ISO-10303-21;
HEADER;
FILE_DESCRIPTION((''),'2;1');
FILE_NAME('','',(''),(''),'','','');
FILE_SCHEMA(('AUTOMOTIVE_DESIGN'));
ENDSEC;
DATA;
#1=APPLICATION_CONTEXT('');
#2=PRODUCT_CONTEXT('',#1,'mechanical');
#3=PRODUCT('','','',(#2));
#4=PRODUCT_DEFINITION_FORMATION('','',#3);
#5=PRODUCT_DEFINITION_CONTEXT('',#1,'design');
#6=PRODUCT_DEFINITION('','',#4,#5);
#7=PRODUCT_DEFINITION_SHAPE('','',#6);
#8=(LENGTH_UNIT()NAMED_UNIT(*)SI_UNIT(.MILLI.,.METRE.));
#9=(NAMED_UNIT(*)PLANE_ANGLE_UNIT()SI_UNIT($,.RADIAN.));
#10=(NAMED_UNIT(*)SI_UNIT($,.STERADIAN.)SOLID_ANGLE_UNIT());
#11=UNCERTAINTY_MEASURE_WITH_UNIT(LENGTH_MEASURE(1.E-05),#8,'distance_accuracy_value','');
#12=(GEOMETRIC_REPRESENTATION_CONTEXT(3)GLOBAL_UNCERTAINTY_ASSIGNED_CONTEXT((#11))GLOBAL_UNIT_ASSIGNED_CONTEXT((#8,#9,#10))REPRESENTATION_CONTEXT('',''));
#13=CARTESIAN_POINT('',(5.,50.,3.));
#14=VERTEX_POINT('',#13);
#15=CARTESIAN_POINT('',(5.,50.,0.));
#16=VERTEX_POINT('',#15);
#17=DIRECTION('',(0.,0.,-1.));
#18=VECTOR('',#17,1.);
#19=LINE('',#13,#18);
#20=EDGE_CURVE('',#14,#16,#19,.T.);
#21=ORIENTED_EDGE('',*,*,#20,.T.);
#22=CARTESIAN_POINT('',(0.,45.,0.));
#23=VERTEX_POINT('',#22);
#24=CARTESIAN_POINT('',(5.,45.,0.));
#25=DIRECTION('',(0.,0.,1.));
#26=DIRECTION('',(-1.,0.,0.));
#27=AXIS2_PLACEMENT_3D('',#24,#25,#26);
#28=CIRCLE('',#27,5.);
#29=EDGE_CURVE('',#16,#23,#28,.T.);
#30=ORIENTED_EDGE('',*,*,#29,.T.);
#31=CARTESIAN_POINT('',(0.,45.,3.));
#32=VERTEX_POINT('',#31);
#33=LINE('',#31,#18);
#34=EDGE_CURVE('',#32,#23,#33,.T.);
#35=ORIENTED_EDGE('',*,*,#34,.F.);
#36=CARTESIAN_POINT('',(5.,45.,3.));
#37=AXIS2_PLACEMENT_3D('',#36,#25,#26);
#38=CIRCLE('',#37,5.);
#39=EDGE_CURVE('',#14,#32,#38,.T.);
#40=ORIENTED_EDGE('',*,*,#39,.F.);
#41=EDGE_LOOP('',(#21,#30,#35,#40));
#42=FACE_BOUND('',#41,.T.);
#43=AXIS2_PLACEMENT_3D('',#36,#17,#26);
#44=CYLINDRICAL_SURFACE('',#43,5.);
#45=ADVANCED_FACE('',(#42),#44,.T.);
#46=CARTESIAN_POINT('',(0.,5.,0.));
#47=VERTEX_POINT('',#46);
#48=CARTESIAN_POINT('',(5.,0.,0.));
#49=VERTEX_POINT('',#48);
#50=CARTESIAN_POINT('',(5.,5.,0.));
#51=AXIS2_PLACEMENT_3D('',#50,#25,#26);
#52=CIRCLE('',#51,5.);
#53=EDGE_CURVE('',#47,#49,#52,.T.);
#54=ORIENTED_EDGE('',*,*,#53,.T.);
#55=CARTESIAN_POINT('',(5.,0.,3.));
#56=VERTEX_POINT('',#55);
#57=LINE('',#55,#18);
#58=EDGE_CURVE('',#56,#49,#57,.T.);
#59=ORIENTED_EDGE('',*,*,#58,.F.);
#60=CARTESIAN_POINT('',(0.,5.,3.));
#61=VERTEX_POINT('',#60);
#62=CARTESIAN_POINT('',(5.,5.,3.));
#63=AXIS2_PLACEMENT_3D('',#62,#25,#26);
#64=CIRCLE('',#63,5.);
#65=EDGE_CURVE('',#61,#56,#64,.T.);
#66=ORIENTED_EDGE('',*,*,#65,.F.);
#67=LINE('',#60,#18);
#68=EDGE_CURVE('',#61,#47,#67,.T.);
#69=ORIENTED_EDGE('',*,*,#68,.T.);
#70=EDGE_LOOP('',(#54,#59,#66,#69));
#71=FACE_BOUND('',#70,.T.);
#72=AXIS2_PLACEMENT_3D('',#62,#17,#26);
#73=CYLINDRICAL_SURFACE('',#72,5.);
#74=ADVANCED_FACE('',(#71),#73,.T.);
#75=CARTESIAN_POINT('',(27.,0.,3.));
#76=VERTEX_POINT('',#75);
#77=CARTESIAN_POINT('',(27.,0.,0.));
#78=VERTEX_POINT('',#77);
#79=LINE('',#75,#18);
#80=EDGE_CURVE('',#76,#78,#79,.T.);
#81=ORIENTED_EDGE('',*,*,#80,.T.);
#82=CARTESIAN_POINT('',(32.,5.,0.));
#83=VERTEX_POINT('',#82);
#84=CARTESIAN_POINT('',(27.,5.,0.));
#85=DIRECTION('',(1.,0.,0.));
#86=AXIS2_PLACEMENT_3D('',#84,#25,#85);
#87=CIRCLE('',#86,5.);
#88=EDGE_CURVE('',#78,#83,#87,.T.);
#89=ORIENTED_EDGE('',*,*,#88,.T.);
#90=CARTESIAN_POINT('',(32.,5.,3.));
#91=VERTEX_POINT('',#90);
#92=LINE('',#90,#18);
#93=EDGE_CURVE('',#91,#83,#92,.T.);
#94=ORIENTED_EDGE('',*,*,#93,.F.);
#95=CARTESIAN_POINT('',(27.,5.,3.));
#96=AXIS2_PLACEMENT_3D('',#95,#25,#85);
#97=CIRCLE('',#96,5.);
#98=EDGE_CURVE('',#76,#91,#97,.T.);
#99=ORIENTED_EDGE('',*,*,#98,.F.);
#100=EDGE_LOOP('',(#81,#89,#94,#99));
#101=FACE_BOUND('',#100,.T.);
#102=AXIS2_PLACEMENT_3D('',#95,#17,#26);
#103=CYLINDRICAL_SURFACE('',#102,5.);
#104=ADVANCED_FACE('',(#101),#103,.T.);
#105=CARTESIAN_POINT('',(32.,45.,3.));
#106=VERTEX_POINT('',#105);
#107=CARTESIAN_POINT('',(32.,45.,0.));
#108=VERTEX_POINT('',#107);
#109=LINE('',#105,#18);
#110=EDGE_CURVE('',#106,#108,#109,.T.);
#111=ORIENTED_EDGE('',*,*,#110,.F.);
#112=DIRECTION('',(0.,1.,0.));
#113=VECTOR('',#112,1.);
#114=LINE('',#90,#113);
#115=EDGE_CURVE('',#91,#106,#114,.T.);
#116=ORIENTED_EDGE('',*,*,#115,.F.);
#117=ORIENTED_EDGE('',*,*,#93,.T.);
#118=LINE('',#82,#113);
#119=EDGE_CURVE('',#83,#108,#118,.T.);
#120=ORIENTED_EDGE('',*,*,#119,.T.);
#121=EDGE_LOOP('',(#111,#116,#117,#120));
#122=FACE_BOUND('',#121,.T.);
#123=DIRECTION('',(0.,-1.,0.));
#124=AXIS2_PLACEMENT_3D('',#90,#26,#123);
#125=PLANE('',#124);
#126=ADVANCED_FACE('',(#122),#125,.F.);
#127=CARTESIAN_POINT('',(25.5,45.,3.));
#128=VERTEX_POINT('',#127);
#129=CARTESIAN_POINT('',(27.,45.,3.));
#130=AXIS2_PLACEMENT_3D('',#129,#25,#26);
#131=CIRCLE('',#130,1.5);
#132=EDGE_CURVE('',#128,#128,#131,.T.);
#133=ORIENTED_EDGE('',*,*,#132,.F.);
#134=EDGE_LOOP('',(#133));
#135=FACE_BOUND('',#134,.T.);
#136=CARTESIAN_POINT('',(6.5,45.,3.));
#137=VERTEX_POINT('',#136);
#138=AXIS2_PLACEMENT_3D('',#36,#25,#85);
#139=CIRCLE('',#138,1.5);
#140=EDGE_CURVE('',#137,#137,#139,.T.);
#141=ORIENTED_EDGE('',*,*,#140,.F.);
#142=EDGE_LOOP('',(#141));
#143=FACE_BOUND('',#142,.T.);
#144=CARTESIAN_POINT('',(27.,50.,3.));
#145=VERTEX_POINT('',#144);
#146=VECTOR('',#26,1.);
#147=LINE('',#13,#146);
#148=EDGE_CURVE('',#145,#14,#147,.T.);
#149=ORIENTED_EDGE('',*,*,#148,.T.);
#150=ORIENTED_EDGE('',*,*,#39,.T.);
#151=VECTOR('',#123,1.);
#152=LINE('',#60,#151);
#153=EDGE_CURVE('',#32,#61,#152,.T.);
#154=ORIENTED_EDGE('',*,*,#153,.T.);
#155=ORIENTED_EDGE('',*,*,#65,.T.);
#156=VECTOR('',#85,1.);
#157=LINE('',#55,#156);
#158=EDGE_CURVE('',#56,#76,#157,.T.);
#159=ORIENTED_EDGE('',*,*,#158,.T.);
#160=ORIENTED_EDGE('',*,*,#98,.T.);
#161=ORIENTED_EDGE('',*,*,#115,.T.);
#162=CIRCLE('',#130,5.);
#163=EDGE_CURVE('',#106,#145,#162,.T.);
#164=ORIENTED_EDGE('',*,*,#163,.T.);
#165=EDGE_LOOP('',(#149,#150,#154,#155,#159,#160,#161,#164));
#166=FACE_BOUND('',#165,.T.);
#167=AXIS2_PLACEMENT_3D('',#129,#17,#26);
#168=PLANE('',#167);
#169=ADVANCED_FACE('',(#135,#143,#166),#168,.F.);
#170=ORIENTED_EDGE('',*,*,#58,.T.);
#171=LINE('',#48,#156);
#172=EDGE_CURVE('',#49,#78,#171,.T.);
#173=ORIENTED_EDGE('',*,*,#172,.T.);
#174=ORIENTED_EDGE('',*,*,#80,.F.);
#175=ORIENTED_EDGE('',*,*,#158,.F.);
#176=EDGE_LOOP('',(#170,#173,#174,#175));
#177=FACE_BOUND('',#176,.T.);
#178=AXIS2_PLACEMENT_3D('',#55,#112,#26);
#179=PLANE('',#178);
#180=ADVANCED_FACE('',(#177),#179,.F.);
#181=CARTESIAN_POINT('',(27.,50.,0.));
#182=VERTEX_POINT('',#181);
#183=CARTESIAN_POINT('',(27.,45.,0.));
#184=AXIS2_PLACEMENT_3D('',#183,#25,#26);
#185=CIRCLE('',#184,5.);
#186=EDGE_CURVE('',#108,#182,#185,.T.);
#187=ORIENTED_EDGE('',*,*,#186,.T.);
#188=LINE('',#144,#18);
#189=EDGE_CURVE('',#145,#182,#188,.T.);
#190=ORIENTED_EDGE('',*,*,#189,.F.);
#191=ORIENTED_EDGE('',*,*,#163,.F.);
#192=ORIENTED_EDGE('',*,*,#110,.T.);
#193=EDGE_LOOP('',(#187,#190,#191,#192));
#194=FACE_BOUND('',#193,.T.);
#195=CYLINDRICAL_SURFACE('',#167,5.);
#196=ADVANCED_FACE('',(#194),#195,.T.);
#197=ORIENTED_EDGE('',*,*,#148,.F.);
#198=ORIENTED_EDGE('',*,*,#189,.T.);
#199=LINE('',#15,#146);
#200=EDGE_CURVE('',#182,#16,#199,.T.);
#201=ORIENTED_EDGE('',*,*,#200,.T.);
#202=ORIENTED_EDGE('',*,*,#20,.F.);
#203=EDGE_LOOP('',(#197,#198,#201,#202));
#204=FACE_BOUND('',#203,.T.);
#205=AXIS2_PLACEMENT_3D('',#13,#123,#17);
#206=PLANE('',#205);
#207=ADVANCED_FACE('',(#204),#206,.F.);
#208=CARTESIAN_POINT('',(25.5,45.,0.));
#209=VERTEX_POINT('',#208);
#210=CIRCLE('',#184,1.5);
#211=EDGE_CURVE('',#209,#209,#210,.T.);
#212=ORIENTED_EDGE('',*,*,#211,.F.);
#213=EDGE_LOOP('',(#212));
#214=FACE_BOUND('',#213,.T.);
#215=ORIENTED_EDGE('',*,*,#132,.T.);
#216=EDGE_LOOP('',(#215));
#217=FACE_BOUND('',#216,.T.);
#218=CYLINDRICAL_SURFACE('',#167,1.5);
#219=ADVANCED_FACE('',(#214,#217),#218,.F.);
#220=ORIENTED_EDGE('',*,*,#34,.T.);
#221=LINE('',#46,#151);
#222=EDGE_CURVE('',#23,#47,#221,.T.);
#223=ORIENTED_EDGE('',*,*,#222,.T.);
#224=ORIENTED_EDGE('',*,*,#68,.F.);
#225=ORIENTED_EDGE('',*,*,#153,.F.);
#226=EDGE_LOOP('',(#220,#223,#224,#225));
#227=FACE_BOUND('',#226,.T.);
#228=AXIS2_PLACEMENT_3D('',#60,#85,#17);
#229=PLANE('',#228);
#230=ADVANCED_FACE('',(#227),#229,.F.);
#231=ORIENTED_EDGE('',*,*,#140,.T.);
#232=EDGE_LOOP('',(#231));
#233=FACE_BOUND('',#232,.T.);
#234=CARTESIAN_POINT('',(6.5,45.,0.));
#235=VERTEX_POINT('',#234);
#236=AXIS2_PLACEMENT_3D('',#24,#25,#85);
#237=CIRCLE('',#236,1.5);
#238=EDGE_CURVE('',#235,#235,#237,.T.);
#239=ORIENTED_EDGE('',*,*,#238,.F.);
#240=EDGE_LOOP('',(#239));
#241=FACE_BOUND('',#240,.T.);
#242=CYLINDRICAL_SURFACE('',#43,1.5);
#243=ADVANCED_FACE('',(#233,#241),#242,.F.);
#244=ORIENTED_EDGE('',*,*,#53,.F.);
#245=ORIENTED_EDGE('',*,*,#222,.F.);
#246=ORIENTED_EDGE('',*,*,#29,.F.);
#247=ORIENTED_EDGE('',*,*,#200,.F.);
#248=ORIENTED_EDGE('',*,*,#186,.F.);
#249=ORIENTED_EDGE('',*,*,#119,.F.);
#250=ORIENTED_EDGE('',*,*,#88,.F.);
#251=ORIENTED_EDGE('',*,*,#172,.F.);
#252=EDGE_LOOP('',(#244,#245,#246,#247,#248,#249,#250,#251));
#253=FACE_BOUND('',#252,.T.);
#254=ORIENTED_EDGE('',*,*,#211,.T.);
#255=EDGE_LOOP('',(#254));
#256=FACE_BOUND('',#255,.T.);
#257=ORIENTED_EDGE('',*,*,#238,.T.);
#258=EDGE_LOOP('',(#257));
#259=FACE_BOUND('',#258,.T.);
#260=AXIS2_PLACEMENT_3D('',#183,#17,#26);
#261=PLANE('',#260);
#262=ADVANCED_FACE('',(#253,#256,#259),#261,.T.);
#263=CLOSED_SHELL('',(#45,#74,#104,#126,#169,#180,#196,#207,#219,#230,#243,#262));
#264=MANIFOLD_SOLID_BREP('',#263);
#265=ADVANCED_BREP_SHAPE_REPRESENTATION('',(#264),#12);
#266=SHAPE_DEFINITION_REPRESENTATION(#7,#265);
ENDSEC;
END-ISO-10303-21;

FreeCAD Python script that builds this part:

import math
import FreeCAD as App
import Part
import Sketcher

V = App.Vector

doc = App.newDocument("Part")
body = doc.addObject("PartDesign::Body", "Body")

# Sketch on XY plane
sketch1 = body.newObject("Sketcher::SketchObject", "Sketch")
sketch1.AttachmentSupport = (doc.getObject("XY_Plane"), [""])
sketch1.MapMode = "FlatFace"
sketch1.addGeometry([
    Part.LineSegment(V(5, 0, 0), V(27, 0, 0)),  # 0
    Part.ArcOfCircle(Part.Circle(V(27, 5, 0), V(0, 0, 1), 5), math.radians(-90), math.radians(0)),  # 1
    Part.LineSegment(V(32, 5, 0), V(32, 45, 0)),  # 2
    Part.ArcOfCircle(Part.Circle(V(27, 45, 0), V(0, 0, 1), 5), math.radians(0), math.radians(90)),  # 3
    Part.LineSegment(V(27, 50, 0), V(5, 50, 0)),  # 4
    Part.ArcOfCircle(Part.Circle(V(5, 45, 0), V(0, 0, 1), 5), math.radians(90), math.radians(180)),  # 5
    Part.LineSegment(V(0, 45, 0), V(0, 5, 0)),  # 6
    Part.ArcOfCircle(Part.Circle(V(5, 5, 0), V(0, 0, 1), 5), math.radians(180), math.radians(270)),  # 7
    Part.Circle(V(5, 45, 0), V(0, 0, 1), 1.5),  # 8
    Part.Circle(V(27, 45, 0), V(0, 0, 1), 1.5),  # 9
], False)
sketch1.addConstraint([
    Sketcher.Constraint("Tangent", 0, 2, 1, 1),
    Sketcher.Constraint("Tangent", 1, 2, 2, 1),
    Sketcher.Constraint("Tangent", 2, 2, 3, 1),
    Sketcher.Constraint("Tangent", 3, 2, 4, 1),
    Sketcher.Constraint("Tangent", 4, 2, 5, 1),
    Sketcher.Constraint("Tangent", 5, 2, 6, 1),
    Sketcher.Constraint("Tangent", 6, 2, 7, 1),
    Sketcher.Constraint("Tangent", 7, 2, 0, 1),
    Sketcher.Constraint("Horizontal", 0),
    Sketcher.Constraint("Vertical", 2),
    Sketcher.Constraint("Horizontal", 4),
    Sketcher.Constraint("Vertical", 6),
    Sketcher.Constraint("Coincident", 8, 3, 5, 3),
    Sketcher.Constraint("Coincident", 9, 3, 3, 3),
    Sketcher.Constraint("Equal", 1, 3),
    Sketcher.Constraint("Equal", 3, 5),
    Sketcher.Constraint("Equal", 5, 7),
    Sketcher.Constraint("Equal", 8, 9),
    Sketcher.Constraint("PointOnObject", 0, 2, -1),
    Sketcher.Constraint("PointOnObject", 5, 2, -2),
    Sketcher.Constraint("Diameter", 8, 3.0),
    Sketcher.Constraint("Radius", 1, 5.0),
    Sketcher.Constraint("DistanceX", 0, 1, 0, 2, 22.0),
    Sketcher.Constraint("DistanceY", 2, 1, 2, 2, 40.0),
])
pad1 = body.newObject("PartDesign::Pad", "Pad")
pad1.Profile = sketch1
pad1.Length = 3

doc.recompute()
